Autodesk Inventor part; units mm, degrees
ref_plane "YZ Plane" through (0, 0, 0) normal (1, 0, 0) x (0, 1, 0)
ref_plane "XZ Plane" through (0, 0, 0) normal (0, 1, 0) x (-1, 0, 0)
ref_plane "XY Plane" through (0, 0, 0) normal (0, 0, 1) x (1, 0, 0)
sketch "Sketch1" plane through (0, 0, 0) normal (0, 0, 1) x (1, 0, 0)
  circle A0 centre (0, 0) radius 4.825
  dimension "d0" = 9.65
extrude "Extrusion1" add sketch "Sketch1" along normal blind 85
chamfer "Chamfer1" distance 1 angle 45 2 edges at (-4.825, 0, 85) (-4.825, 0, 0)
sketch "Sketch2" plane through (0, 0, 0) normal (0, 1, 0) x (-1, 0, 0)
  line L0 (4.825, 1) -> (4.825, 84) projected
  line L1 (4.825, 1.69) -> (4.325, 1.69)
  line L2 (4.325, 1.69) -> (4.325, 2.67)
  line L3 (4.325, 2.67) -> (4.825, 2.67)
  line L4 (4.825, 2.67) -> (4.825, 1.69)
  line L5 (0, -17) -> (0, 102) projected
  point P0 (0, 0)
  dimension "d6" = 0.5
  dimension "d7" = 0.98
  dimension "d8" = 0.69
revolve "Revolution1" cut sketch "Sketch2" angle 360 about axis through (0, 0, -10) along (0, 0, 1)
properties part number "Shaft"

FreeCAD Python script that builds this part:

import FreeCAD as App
import Part
import Sketcher


def edges_at(feature, points):
    """Names of the edges that pass closest to the given points."""
    edges = feature.Shape.Edges
    near = lambda p: min(range(len(edges)), key=lambda i: edges[i].distToShape(Part.Vertex(*p))[0])
    return sorted({f"Edge{near(p) + 1}" for p in points})

doc = App.newDocument("Part")
body = doc.addObject("PartDesign::Body", "Body")

# Sketch on XY plane
sketch1 = body.newObject("Sketcher::SketchObject", "Sketch")
sketch1.AttachmentSupport = (doc.getObject("XY_Plane"), [""])
sketch1.MapMode = "FlatFace"
sketch1.addGeometry(Part.Circle(App.Vector(0, 0, 0), App.Vector(0, 0, 1), 4.825), False)
sketch1.addConstraint([
    Sketcher.Constraint("Coincident", 0, 3, -1, 1),
    Sketcher.Constraint("Diameter", 0, 9.65),
])
pad1 = body.newObject("PartDesign::Pad", "Pad")
pad1.Profile = sketch1
pad1.Length = 85
doc.recompute()

chamfer = body.newObject("PartDesign::Chamfer", "Chamfer")
chamfer.Base = (pad1, edges_at(pad1, [(-4.825, 0, 85), (-4.825, 0, 0)]))
chamfer.Size = 1

# Sketch on XZ plane
sketch2 = body.newObject("Sketcher::SketchObject", "Sketch001")
sketch2.AttachmentSupport = (doc.getObject("XZ_Plane"), [""])
sketch2.MapMode = "FlatFace"
sketch2.addGeometry([
    Part.LineSegment(App.Vector(-4.325, 1.69, 0), App.Vector(-4.825, 1.69, 0)),
    Part.LineSegment(App.Vector(-4.825, 1.69, 0), App.Vector(-4.825, 2.67, 0)),
    Part.LineSegment(App.Vector(-4.825, 2.67, 0), App.Vector(-4.325, 2.67, 0)),
    Part.LineSegment(App.Vector(-4.325, 2.67, 0), App.Vector(-4.325, 1.69, 0)),
], False)
sketch2.addConstraint([
    Sketcher.Constraint("Coincident", 0, 2, 1, 1),
    Sketcher.Constraint("Coincident", 1, 2, 2, 1),
    Sketcher.Constraint("Coincident", 2, 2, 3, 1),
    Sketcher.Constraint("Coincident", 3, 2, 0, 1),
    Sketcher.Constraint("Horizontal", 0),
    Sketcher.Constraint("Vertical", 1),
    Sketcher.Constraint("Horizontal", 2),
    Sketcher.Constraint("Vertical", 3),
    Sketcher.Constraint("DistanceX", 0, 2, 0, 1, 0.5),
    Sketcher.Constraint("DistanceY", 1, 1, 1, 2, 0.98),
    Sketcher.Constraint("DistanceY", -1, 1, 0, 2, 1.69),
    Sketcher.Constraint("DistanceX", 0, 2, -1, 1, 4.825),
])
groove = body.newObject("PartDesign::Groove", "Groove")
groove.Profile = sketch2
groove.ReferenceAxis = (sketch2, ["V_Axis"])
groove.Angle = 360

doc.recompute()
